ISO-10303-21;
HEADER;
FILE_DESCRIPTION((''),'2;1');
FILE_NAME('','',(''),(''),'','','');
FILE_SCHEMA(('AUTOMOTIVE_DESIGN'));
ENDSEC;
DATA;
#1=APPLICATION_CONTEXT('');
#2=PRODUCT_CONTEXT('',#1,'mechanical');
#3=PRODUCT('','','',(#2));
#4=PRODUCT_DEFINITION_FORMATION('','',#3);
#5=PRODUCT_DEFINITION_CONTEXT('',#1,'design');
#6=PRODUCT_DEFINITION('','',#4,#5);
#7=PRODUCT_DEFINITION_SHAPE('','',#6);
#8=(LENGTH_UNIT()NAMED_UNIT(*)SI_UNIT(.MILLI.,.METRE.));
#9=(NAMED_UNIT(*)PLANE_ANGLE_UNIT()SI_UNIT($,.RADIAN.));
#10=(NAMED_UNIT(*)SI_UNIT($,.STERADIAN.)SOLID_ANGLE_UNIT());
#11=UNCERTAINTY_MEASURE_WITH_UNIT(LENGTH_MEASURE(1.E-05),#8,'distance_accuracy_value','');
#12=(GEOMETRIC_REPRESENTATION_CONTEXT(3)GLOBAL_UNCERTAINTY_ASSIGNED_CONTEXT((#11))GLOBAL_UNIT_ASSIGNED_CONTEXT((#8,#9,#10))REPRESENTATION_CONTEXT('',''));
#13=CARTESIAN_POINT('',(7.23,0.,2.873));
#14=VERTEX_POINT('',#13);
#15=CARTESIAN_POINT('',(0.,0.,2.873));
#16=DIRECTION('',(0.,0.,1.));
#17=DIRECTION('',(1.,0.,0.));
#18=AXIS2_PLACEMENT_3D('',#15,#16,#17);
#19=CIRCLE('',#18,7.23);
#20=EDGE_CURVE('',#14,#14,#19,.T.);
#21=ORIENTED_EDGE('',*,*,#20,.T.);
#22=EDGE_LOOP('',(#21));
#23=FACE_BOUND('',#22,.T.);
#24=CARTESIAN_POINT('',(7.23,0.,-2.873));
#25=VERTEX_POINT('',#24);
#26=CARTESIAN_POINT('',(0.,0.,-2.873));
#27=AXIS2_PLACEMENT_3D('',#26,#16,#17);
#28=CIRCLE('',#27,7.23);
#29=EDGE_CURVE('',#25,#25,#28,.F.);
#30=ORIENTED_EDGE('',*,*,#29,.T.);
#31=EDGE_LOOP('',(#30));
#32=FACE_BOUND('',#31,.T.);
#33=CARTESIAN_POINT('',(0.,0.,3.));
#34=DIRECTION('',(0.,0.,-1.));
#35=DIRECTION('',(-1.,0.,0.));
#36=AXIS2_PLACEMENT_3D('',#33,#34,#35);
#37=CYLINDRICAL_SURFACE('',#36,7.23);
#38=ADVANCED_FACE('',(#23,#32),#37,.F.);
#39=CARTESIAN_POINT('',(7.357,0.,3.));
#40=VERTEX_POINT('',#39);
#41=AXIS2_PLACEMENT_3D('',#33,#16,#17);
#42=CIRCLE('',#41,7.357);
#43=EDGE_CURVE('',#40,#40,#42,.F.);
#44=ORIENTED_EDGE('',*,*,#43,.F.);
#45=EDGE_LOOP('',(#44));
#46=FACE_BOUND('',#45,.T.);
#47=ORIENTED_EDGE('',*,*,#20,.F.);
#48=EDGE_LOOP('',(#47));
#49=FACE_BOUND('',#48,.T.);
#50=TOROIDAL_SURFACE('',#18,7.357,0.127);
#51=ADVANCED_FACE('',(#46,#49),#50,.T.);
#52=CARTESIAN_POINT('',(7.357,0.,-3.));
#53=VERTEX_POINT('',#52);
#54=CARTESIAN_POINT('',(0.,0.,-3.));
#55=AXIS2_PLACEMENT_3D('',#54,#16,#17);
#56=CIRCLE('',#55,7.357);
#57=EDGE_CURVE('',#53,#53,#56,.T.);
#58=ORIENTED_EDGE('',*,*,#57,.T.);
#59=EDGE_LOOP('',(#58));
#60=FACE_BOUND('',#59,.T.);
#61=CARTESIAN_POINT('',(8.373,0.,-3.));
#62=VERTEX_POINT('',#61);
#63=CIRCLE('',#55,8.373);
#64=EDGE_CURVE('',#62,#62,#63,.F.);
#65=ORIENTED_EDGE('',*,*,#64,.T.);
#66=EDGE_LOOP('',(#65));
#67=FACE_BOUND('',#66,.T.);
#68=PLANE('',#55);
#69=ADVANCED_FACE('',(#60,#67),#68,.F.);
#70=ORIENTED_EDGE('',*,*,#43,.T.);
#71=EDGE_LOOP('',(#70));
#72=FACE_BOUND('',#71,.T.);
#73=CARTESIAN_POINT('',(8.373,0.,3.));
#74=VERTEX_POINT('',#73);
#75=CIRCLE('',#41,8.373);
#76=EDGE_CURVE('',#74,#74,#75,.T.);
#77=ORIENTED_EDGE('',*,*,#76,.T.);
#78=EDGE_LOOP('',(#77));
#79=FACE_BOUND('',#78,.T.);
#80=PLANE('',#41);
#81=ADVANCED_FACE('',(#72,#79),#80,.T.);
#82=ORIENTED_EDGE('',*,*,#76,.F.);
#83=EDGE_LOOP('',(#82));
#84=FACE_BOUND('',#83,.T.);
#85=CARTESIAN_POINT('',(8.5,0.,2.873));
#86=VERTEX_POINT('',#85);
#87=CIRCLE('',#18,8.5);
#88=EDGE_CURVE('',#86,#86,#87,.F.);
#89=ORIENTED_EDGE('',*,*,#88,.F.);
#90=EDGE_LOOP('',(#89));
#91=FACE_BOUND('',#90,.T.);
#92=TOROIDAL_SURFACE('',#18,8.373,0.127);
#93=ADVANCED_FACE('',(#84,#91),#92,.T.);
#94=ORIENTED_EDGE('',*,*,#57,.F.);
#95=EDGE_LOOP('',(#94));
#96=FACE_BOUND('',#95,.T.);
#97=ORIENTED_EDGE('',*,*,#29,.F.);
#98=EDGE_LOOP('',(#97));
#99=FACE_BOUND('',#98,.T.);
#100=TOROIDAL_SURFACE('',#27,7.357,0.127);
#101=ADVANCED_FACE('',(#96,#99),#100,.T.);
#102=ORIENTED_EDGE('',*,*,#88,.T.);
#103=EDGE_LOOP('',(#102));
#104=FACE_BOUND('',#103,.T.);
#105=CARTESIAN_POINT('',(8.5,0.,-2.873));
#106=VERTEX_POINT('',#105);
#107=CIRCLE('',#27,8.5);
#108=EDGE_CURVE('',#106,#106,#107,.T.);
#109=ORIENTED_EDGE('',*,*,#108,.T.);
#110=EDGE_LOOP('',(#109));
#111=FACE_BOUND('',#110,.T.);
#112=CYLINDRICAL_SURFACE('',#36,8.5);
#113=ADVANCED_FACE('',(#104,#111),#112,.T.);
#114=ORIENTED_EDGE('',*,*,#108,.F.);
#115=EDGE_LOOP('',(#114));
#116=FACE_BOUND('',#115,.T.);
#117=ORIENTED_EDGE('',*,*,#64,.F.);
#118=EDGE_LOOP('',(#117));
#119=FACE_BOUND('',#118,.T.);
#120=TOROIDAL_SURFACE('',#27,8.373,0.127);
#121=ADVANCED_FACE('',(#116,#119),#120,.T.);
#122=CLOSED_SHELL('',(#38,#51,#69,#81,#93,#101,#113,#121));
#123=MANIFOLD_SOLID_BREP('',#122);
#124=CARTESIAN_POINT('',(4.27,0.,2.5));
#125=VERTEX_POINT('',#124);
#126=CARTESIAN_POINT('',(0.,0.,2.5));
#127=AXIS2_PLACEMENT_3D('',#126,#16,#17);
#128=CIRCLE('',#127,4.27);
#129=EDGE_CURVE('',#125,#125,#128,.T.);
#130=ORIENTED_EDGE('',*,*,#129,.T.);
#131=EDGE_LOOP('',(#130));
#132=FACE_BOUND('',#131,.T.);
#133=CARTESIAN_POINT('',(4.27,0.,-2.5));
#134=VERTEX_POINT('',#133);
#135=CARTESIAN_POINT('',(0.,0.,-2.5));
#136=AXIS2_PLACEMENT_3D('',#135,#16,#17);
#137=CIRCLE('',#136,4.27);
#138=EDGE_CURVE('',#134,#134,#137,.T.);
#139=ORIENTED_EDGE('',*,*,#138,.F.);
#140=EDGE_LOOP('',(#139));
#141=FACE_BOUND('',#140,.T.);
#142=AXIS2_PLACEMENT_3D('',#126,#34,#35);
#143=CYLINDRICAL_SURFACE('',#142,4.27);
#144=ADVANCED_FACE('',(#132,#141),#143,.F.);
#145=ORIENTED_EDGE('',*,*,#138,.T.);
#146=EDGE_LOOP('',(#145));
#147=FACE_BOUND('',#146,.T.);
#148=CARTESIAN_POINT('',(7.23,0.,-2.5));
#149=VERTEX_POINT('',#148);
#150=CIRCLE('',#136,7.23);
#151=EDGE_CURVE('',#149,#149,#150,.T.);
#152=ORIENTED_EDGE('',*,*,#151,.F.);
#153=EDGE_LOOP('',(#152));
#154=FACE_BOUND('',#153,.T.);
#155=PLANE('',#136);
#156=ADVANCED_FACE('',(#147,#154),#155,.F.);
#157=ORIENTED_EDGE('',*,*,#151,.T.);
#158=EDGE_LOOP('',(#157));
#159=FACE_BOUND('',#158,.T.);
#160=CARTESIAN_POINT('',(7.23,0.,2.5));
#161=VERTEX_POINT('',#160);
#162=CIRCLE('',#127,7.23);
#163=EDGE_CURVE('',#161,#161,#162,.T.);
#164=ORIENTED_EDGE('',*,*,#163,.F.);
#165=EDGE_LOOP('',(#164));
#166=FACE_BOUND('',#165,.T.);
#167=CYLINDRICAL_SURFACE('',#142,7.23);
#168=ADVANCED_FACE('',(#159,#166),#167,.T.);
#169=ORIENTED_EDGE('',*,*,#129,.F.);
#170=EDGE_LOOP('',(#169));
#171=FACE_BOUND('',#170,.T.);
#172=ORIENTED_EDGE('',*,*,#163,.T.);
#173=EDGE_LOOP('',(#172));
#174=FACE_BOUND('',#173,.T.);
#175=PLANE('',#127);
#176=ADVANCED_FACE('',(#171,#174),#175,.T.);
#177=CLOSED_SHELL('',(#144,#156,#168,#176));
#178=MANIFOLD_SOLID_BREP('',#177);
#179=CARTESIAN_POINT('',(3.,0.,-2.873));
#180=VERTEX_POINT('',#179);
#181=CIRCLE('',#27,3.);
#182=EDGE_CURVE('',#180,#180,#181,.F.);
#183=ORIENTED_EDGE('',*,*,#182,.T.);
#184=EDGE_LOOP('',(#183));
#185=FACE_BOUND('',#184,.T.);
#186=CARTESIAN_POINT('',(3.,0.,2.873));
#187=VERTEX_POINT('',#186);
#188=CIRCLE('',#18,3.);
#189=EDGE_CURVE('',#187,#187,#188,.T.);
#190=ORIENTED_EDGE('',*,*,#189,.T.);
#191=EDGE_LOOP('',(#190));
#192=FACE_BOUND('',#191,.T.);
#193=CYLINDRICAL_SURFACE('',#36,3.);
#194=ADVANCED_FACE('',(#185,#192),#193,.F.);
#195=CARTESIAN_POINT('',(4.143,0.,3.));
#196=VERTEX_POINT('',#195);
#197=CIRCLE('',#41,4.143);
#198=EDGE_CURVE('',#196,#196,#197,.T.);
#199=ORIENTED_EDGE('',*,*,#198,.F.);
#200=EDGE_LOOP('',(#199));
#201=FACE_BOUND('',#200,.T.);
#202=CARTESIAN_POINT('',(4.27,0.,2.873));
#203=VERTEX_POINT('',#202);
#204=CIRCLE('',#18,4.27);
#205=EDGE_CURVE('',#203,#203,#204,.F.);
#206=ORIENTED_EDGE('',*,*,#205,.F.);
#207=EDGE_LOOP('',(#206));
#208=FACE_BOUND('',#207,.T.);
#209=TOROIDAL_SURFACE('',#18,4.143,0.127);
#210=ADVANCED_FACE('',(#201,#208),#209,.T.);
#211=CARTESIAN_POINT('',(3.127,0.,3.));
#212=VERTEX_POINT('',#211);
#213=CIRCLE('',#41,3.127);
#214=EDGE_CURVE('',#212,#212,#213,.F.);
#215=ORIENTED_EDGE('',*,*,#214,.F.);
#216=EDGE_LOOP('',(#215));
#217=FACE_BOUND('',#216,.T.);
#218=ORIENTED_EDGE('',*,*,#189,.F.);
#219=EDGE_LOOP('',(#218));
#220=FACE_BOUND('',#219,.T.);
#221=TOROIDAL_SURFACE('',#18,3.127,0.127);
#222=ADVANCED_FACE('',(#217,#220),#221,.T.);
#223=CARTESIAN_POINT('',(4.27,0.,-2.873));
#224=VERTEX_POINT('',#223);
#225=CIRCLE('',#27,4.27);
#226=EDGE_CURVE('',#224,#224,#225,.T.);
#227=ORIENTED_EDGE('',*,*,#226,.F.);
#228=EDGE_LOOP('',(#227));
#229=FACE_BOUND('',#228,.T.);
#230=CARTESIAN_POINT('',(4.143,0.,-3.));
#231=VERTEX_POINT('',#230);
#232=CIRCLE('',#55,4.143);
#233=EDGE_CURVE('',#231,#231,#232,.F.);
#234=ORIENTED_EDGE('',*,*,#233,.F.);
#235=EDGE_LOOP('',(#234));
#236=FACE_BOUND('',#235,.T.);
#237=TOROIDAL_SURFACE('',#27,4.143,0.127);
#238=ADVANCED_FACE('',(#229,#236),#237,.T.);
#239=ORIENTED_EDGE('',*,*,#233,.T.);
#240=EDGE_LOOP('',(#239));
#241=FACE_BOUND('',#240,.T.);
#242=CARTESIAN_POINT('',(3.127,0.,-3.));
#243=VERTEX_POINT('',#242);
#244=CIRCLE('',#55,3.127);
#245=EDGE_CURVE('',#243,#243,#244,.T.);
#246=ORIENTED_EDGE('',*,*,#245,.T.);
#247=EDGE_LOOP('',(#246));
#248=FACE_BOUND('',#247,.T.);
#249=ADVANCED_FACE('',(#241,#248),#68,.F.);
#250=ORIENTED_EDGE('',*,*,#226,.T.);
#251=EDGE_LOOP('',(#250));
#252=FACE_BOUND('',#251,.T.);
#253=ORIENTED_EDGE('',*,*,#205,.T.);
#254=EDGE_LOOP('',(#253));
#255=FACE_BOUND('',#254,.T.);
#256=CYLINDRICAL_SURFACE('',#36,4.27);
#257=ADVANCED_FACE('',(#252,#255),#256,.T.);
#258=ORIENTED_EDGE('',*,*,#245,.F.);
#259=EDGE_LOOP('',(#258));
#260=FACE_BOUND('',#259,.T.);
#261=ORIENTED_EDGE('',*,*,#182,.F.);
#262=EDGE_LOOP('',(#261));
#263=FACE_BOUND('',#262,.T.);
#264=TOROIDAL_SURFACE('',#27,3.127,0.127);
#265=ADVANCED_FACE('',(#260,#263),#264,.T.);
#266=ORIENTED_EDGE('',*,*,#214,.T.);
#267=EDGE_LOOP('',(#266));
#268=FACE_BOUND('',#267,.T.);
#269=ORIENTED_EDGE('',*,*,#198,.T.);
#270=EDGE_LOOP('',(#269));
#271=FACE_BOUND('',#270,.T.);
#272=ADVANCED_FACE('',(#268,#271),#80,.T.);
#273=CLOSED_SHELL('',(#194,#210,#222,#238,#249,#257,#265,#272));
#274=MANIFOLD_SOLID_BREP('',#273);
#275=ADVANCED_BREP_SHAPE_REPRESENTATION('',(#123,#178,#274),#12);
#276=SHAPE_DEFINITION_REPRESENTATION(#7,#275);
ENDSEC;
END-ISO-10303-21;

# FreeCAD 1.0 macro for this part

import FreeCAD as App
import Part
import Sketcher


def edges_at(feature, points):
    """Names of the edges that pass closest to the given points."""
    edges = feature.Shape.Edges
    near = lambda p: min(range(len(edges)), key=lambda i: edges[i].distToShape(Part.Vertex(*p))[0])
    return sorted({f"Edge{near(p) + 1}" for p in points})

doc = App.newDocument("Part")
body = doc.addObject("PartDesign::Body", "Body")

# Sketch on XY plane
sketch1 = body.newObject("Sketcher::SketchObject", "Sketch")
sketch1.AttachmentSupport = (doc.getObject("XY_Plane"), [""])
sketch1.MapMode = "FlatFace"
sketch1.addGeometry([
    Part.Circle(App.Vector(0, 0, 0), App.Vector(0, 0, 1), 4.3),
    Part.Circle(App.Vector(0, 0, 0), App.Vector(0, 0, 1), 3),
], False)
sketch1.addConstraint([
    Sketcher.Constraint("Coincident", 0, 3, -1, 1),
    Sketcher.Constraint("Coincident", 1, 3, -1, 1),
    Sketcher.Constraint("Diameter", 1, 6.0),
    Sketcher.Constraint("Diameter", 0, 8.54),
])
pad1 = body.newObject("PartDesign::Pad", "Pad")
pad1.Profile = sketch1
pad1.Length = 6
pad1.Midplane = True
doc.recompute()

fillet = body.newObject("PartDesign::Fillet", "Fillet")
fillet.Base = (pad1, edges_at(pad1, [
    (-4.27, 0, -3),
    (-4.27, 0, 3),
    (-3, 0, -3),
    (-3, 0, 3),
]))
fillet.Radius = 0.127
body2 = doc.addObject("PartDesign::Body", "Body001")

# Sketch on XY plane
sketch2 = body2.newObject("Sketcher::SketchObject", "Sketch001")
sketch2.AttachmentSupport = (doc.getObject("XY_Plane001"), [""])
sketch2.MapMode = "FlatFace"
sketch2.addGeometry([
    Part.Circle(App.Vector(0, 0, 0), App.Vector(0, 0, 1), 8),
    Part.Circle(App.Vector(0, 0, 0), App.Vector(0, 0, 1), 7),
], False)
sketch2.addConstraint([
    Sketcher.Constraint("Coincident", 0, 3, -1, 1),
    Sketcher.Constraint("Coincident", 1, 3, -1, 1),
    Sketcher.Constraint("Diameter", 0, 17.0),
    Sketcher.Constraint("Diameter", 1, 14.46),
])
pad2 = body2.newObject("PartDesign::Pad", "Pad001")
pad2.Profile = sketch2
pad2.Length = 6
pad2.Midplane = True
doc.recompute()

fillet2 = body2.newObject("PartDesign::Fillet", "Fillet001")
fillet2.Base = (pad2, edges_at(pad2, [
    (-8.5, 0, -3),
    (-8.5, 0, 3),
    (-7.23, 0, -3),
    (-7.23, 0, 3),
]))
fillet2.Radius = 0.127
body3 = doc.addObject("PartDesign::Body", "Body002")

# Sketch on XY plane
sketch3 = body3.newObject("Sketcher::SketchObject", "Sketch002")
sketch3.AttachmentSupport = (doc.getObject("XY_Plane002"), [""])
sketch3.MapMode = "FlatFace"
sketch3.addGeometry([
    Part.Circle(App.Vector(0, 0, 0), App.Vector(0, 0, 1), 7.2),
    Part.Circle(App.Vector(0, 0, 0), App.Vector(0, 0, 1), 4.3),
], False)
sketch3.addConstraint([
    Sketcher.Constraint("Coincident", 0, 3, -1, 1),
    Sketcher.Constraint("Coincident", 1, 3, -1, 1),
    Sketcher.Constraint("Diameter", 0, 14.46),
    Sketcher.Constraint("Diameter", 1, 8.54),
])
pad3 = body3.newObject("PartDesign::Pad", "Pad002")
pad3.Profile = sketch3
pad3.Length = 5
pad3.Midplane = True

doc.recompute()
